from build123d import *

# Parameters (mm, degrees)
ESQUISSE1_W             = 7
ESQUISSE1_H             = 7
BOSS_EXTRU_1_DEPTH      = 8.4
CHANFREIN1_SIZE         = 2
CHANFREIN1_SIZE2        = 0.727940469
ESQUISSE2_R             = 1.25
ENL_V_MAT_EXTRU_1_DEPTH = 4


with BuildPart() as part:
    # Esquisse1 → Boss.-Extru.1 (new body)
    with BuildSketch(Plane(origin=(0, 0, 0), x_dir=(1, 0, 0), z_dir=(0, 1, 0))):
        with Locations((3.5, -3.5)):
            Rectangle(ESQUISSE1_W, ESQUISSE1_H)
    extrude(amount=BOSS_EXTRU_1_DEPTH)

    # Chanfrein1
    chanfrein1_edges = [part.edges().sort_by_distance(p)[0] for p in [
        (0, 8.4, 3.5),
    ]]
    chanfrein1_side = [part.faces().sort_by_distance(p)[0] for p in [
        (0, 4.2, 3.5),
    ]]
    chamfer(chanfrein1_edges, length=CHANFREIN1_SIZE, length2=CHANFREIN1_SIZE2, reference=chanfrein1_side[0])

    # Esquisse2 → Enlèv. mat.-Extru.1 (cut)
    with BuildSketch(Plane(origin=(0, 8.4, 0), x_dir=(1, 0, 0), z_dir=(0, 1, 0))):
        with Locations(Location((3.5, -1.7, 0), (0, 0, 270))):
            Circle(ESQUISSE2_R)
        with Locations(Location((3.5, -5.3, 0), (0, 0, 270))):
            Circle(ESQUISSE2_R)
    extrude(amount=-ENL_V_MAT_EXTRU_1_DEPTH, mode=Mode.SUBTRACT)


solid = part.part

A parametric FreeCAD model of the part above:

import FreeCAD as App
import Part
import Sketcher

V = App.Vector


def edges_at(feature, points):
    """Names of the edges that pass closest to the given points."""
    edges = feature.Shape.Edges
    near = lambda p: min(range(len(edges)), key=lambda i: edges[i].distToShape(Part.Vertex(*p))[0])
    return sorted({f"Edge{near(p) + 1}" for p in points})

doc = App.newDocument("Part")
body = doc.addObject("PartDesign::Body", "Body")

# Sketch on XZ plane
sketch1 = body.newObject("Sketcher::SketchObject", "Sketch")
sketch1.AttachmentSupport = (doc.getObject("XZ_Plane"), [""])
sketch1.MapMode = "FlatFace"
sketch1.addGeometry([
    Part.LineSegment(V(0, 0, 0), V(0, 7, 0)),
    Part.LineSegment(V(0, 7, 0), V(7, 7, 0)),
    Part.LineSegment(V(7, 7, 0), V(7, 0, 0)),
    Part.LineSegment(V(7, 0, 0), V(0, 0, 0)),
], False)
sketch1.addConstraint([
    Sketcher.Constraint("Coincident", 0, 2, 1, 1),
    Sketcher.Constraint("Coincident", 1, 2, 2, 1),
    Sketcher.Constraint("Coincident", 2, 2, 3, 1),
    Sketcher.Constraint("Coincident", 3, 2, 0, 1),
    Sketcher.Constraint("Vertical", 0),
    Sketcher.Constraint("Horizontal", 1),
    Sketcher.Constraint("Vertical", 2),
    Sketcher.Constraint("Horizontal", 3),
    Sketcher.Constraint("Coincident", 3, 2, -1, 1),
    Sketcher.Constraint("Equal", 3, 0),
    Sketcher.Constraint("DistanceX", 1, 1, 1, 2, 7.0),
])
pad1 = body.newObject("PartDesign::Pad", "Pad")
pad1.Profile = sketch1
pad1.Length = 8.4
pad1.Reversed = True
doc.recompute()

chamfer = body.newObject("PartDesign::Chamfer", "Chamfer")
chamfer.Base = (pad1, edges_at(pad1, [(0, 8.4, 3.5)]))
chamfer.ChamferType = "Two distances"
chamfer.Size = 2
chamfer.Size2 = 0.72794

# Sketch on XZ plane
sketch2 = body.newObject("Sketcher::SketchObject", "Sketch001")
sketch2.AttachmentSupport = (doc.getObject("XZ_Plane"), [""])
sketch2.MapMode = "FlatFace"
sketch2.AttachmentOffset = App.Placement(V(0, 0, -8.4), App.Rotation())
sketch2.addGeometry([
    Part.Circle(V(3.5, 1.7, 0), V(0, 0, 1), 1.25),
    Part.Circle(V(3.5, 5.3, 0), V(0, 0, 1), 1.25),
], False)
sketch2.addConstraint([
    Sketcher.Constraint("Equal", 0, 1),
    Sketcher.Constraint("Vertical", 0, 3, 1, 3),
    Sketcher.Constraint("Diameter", 0, 2.5),
    Sketcher.Constraint("DistanceX", -1, 1, 0, 3, 3.5),
    Sketcher.Constraint("DistanceY", -1, 1, 0, 3, 1.7),
    Sketcher.Constraint("DistanceY", -1, 1, 1, 3, 5.3),
])
pocket1 = body.newObject("PartDesign::Pocket", "Pocket")
pocket1.Profile = sketch2
pocket1.Length = 4
pocket1.Reversed = True

doc.recompute()
